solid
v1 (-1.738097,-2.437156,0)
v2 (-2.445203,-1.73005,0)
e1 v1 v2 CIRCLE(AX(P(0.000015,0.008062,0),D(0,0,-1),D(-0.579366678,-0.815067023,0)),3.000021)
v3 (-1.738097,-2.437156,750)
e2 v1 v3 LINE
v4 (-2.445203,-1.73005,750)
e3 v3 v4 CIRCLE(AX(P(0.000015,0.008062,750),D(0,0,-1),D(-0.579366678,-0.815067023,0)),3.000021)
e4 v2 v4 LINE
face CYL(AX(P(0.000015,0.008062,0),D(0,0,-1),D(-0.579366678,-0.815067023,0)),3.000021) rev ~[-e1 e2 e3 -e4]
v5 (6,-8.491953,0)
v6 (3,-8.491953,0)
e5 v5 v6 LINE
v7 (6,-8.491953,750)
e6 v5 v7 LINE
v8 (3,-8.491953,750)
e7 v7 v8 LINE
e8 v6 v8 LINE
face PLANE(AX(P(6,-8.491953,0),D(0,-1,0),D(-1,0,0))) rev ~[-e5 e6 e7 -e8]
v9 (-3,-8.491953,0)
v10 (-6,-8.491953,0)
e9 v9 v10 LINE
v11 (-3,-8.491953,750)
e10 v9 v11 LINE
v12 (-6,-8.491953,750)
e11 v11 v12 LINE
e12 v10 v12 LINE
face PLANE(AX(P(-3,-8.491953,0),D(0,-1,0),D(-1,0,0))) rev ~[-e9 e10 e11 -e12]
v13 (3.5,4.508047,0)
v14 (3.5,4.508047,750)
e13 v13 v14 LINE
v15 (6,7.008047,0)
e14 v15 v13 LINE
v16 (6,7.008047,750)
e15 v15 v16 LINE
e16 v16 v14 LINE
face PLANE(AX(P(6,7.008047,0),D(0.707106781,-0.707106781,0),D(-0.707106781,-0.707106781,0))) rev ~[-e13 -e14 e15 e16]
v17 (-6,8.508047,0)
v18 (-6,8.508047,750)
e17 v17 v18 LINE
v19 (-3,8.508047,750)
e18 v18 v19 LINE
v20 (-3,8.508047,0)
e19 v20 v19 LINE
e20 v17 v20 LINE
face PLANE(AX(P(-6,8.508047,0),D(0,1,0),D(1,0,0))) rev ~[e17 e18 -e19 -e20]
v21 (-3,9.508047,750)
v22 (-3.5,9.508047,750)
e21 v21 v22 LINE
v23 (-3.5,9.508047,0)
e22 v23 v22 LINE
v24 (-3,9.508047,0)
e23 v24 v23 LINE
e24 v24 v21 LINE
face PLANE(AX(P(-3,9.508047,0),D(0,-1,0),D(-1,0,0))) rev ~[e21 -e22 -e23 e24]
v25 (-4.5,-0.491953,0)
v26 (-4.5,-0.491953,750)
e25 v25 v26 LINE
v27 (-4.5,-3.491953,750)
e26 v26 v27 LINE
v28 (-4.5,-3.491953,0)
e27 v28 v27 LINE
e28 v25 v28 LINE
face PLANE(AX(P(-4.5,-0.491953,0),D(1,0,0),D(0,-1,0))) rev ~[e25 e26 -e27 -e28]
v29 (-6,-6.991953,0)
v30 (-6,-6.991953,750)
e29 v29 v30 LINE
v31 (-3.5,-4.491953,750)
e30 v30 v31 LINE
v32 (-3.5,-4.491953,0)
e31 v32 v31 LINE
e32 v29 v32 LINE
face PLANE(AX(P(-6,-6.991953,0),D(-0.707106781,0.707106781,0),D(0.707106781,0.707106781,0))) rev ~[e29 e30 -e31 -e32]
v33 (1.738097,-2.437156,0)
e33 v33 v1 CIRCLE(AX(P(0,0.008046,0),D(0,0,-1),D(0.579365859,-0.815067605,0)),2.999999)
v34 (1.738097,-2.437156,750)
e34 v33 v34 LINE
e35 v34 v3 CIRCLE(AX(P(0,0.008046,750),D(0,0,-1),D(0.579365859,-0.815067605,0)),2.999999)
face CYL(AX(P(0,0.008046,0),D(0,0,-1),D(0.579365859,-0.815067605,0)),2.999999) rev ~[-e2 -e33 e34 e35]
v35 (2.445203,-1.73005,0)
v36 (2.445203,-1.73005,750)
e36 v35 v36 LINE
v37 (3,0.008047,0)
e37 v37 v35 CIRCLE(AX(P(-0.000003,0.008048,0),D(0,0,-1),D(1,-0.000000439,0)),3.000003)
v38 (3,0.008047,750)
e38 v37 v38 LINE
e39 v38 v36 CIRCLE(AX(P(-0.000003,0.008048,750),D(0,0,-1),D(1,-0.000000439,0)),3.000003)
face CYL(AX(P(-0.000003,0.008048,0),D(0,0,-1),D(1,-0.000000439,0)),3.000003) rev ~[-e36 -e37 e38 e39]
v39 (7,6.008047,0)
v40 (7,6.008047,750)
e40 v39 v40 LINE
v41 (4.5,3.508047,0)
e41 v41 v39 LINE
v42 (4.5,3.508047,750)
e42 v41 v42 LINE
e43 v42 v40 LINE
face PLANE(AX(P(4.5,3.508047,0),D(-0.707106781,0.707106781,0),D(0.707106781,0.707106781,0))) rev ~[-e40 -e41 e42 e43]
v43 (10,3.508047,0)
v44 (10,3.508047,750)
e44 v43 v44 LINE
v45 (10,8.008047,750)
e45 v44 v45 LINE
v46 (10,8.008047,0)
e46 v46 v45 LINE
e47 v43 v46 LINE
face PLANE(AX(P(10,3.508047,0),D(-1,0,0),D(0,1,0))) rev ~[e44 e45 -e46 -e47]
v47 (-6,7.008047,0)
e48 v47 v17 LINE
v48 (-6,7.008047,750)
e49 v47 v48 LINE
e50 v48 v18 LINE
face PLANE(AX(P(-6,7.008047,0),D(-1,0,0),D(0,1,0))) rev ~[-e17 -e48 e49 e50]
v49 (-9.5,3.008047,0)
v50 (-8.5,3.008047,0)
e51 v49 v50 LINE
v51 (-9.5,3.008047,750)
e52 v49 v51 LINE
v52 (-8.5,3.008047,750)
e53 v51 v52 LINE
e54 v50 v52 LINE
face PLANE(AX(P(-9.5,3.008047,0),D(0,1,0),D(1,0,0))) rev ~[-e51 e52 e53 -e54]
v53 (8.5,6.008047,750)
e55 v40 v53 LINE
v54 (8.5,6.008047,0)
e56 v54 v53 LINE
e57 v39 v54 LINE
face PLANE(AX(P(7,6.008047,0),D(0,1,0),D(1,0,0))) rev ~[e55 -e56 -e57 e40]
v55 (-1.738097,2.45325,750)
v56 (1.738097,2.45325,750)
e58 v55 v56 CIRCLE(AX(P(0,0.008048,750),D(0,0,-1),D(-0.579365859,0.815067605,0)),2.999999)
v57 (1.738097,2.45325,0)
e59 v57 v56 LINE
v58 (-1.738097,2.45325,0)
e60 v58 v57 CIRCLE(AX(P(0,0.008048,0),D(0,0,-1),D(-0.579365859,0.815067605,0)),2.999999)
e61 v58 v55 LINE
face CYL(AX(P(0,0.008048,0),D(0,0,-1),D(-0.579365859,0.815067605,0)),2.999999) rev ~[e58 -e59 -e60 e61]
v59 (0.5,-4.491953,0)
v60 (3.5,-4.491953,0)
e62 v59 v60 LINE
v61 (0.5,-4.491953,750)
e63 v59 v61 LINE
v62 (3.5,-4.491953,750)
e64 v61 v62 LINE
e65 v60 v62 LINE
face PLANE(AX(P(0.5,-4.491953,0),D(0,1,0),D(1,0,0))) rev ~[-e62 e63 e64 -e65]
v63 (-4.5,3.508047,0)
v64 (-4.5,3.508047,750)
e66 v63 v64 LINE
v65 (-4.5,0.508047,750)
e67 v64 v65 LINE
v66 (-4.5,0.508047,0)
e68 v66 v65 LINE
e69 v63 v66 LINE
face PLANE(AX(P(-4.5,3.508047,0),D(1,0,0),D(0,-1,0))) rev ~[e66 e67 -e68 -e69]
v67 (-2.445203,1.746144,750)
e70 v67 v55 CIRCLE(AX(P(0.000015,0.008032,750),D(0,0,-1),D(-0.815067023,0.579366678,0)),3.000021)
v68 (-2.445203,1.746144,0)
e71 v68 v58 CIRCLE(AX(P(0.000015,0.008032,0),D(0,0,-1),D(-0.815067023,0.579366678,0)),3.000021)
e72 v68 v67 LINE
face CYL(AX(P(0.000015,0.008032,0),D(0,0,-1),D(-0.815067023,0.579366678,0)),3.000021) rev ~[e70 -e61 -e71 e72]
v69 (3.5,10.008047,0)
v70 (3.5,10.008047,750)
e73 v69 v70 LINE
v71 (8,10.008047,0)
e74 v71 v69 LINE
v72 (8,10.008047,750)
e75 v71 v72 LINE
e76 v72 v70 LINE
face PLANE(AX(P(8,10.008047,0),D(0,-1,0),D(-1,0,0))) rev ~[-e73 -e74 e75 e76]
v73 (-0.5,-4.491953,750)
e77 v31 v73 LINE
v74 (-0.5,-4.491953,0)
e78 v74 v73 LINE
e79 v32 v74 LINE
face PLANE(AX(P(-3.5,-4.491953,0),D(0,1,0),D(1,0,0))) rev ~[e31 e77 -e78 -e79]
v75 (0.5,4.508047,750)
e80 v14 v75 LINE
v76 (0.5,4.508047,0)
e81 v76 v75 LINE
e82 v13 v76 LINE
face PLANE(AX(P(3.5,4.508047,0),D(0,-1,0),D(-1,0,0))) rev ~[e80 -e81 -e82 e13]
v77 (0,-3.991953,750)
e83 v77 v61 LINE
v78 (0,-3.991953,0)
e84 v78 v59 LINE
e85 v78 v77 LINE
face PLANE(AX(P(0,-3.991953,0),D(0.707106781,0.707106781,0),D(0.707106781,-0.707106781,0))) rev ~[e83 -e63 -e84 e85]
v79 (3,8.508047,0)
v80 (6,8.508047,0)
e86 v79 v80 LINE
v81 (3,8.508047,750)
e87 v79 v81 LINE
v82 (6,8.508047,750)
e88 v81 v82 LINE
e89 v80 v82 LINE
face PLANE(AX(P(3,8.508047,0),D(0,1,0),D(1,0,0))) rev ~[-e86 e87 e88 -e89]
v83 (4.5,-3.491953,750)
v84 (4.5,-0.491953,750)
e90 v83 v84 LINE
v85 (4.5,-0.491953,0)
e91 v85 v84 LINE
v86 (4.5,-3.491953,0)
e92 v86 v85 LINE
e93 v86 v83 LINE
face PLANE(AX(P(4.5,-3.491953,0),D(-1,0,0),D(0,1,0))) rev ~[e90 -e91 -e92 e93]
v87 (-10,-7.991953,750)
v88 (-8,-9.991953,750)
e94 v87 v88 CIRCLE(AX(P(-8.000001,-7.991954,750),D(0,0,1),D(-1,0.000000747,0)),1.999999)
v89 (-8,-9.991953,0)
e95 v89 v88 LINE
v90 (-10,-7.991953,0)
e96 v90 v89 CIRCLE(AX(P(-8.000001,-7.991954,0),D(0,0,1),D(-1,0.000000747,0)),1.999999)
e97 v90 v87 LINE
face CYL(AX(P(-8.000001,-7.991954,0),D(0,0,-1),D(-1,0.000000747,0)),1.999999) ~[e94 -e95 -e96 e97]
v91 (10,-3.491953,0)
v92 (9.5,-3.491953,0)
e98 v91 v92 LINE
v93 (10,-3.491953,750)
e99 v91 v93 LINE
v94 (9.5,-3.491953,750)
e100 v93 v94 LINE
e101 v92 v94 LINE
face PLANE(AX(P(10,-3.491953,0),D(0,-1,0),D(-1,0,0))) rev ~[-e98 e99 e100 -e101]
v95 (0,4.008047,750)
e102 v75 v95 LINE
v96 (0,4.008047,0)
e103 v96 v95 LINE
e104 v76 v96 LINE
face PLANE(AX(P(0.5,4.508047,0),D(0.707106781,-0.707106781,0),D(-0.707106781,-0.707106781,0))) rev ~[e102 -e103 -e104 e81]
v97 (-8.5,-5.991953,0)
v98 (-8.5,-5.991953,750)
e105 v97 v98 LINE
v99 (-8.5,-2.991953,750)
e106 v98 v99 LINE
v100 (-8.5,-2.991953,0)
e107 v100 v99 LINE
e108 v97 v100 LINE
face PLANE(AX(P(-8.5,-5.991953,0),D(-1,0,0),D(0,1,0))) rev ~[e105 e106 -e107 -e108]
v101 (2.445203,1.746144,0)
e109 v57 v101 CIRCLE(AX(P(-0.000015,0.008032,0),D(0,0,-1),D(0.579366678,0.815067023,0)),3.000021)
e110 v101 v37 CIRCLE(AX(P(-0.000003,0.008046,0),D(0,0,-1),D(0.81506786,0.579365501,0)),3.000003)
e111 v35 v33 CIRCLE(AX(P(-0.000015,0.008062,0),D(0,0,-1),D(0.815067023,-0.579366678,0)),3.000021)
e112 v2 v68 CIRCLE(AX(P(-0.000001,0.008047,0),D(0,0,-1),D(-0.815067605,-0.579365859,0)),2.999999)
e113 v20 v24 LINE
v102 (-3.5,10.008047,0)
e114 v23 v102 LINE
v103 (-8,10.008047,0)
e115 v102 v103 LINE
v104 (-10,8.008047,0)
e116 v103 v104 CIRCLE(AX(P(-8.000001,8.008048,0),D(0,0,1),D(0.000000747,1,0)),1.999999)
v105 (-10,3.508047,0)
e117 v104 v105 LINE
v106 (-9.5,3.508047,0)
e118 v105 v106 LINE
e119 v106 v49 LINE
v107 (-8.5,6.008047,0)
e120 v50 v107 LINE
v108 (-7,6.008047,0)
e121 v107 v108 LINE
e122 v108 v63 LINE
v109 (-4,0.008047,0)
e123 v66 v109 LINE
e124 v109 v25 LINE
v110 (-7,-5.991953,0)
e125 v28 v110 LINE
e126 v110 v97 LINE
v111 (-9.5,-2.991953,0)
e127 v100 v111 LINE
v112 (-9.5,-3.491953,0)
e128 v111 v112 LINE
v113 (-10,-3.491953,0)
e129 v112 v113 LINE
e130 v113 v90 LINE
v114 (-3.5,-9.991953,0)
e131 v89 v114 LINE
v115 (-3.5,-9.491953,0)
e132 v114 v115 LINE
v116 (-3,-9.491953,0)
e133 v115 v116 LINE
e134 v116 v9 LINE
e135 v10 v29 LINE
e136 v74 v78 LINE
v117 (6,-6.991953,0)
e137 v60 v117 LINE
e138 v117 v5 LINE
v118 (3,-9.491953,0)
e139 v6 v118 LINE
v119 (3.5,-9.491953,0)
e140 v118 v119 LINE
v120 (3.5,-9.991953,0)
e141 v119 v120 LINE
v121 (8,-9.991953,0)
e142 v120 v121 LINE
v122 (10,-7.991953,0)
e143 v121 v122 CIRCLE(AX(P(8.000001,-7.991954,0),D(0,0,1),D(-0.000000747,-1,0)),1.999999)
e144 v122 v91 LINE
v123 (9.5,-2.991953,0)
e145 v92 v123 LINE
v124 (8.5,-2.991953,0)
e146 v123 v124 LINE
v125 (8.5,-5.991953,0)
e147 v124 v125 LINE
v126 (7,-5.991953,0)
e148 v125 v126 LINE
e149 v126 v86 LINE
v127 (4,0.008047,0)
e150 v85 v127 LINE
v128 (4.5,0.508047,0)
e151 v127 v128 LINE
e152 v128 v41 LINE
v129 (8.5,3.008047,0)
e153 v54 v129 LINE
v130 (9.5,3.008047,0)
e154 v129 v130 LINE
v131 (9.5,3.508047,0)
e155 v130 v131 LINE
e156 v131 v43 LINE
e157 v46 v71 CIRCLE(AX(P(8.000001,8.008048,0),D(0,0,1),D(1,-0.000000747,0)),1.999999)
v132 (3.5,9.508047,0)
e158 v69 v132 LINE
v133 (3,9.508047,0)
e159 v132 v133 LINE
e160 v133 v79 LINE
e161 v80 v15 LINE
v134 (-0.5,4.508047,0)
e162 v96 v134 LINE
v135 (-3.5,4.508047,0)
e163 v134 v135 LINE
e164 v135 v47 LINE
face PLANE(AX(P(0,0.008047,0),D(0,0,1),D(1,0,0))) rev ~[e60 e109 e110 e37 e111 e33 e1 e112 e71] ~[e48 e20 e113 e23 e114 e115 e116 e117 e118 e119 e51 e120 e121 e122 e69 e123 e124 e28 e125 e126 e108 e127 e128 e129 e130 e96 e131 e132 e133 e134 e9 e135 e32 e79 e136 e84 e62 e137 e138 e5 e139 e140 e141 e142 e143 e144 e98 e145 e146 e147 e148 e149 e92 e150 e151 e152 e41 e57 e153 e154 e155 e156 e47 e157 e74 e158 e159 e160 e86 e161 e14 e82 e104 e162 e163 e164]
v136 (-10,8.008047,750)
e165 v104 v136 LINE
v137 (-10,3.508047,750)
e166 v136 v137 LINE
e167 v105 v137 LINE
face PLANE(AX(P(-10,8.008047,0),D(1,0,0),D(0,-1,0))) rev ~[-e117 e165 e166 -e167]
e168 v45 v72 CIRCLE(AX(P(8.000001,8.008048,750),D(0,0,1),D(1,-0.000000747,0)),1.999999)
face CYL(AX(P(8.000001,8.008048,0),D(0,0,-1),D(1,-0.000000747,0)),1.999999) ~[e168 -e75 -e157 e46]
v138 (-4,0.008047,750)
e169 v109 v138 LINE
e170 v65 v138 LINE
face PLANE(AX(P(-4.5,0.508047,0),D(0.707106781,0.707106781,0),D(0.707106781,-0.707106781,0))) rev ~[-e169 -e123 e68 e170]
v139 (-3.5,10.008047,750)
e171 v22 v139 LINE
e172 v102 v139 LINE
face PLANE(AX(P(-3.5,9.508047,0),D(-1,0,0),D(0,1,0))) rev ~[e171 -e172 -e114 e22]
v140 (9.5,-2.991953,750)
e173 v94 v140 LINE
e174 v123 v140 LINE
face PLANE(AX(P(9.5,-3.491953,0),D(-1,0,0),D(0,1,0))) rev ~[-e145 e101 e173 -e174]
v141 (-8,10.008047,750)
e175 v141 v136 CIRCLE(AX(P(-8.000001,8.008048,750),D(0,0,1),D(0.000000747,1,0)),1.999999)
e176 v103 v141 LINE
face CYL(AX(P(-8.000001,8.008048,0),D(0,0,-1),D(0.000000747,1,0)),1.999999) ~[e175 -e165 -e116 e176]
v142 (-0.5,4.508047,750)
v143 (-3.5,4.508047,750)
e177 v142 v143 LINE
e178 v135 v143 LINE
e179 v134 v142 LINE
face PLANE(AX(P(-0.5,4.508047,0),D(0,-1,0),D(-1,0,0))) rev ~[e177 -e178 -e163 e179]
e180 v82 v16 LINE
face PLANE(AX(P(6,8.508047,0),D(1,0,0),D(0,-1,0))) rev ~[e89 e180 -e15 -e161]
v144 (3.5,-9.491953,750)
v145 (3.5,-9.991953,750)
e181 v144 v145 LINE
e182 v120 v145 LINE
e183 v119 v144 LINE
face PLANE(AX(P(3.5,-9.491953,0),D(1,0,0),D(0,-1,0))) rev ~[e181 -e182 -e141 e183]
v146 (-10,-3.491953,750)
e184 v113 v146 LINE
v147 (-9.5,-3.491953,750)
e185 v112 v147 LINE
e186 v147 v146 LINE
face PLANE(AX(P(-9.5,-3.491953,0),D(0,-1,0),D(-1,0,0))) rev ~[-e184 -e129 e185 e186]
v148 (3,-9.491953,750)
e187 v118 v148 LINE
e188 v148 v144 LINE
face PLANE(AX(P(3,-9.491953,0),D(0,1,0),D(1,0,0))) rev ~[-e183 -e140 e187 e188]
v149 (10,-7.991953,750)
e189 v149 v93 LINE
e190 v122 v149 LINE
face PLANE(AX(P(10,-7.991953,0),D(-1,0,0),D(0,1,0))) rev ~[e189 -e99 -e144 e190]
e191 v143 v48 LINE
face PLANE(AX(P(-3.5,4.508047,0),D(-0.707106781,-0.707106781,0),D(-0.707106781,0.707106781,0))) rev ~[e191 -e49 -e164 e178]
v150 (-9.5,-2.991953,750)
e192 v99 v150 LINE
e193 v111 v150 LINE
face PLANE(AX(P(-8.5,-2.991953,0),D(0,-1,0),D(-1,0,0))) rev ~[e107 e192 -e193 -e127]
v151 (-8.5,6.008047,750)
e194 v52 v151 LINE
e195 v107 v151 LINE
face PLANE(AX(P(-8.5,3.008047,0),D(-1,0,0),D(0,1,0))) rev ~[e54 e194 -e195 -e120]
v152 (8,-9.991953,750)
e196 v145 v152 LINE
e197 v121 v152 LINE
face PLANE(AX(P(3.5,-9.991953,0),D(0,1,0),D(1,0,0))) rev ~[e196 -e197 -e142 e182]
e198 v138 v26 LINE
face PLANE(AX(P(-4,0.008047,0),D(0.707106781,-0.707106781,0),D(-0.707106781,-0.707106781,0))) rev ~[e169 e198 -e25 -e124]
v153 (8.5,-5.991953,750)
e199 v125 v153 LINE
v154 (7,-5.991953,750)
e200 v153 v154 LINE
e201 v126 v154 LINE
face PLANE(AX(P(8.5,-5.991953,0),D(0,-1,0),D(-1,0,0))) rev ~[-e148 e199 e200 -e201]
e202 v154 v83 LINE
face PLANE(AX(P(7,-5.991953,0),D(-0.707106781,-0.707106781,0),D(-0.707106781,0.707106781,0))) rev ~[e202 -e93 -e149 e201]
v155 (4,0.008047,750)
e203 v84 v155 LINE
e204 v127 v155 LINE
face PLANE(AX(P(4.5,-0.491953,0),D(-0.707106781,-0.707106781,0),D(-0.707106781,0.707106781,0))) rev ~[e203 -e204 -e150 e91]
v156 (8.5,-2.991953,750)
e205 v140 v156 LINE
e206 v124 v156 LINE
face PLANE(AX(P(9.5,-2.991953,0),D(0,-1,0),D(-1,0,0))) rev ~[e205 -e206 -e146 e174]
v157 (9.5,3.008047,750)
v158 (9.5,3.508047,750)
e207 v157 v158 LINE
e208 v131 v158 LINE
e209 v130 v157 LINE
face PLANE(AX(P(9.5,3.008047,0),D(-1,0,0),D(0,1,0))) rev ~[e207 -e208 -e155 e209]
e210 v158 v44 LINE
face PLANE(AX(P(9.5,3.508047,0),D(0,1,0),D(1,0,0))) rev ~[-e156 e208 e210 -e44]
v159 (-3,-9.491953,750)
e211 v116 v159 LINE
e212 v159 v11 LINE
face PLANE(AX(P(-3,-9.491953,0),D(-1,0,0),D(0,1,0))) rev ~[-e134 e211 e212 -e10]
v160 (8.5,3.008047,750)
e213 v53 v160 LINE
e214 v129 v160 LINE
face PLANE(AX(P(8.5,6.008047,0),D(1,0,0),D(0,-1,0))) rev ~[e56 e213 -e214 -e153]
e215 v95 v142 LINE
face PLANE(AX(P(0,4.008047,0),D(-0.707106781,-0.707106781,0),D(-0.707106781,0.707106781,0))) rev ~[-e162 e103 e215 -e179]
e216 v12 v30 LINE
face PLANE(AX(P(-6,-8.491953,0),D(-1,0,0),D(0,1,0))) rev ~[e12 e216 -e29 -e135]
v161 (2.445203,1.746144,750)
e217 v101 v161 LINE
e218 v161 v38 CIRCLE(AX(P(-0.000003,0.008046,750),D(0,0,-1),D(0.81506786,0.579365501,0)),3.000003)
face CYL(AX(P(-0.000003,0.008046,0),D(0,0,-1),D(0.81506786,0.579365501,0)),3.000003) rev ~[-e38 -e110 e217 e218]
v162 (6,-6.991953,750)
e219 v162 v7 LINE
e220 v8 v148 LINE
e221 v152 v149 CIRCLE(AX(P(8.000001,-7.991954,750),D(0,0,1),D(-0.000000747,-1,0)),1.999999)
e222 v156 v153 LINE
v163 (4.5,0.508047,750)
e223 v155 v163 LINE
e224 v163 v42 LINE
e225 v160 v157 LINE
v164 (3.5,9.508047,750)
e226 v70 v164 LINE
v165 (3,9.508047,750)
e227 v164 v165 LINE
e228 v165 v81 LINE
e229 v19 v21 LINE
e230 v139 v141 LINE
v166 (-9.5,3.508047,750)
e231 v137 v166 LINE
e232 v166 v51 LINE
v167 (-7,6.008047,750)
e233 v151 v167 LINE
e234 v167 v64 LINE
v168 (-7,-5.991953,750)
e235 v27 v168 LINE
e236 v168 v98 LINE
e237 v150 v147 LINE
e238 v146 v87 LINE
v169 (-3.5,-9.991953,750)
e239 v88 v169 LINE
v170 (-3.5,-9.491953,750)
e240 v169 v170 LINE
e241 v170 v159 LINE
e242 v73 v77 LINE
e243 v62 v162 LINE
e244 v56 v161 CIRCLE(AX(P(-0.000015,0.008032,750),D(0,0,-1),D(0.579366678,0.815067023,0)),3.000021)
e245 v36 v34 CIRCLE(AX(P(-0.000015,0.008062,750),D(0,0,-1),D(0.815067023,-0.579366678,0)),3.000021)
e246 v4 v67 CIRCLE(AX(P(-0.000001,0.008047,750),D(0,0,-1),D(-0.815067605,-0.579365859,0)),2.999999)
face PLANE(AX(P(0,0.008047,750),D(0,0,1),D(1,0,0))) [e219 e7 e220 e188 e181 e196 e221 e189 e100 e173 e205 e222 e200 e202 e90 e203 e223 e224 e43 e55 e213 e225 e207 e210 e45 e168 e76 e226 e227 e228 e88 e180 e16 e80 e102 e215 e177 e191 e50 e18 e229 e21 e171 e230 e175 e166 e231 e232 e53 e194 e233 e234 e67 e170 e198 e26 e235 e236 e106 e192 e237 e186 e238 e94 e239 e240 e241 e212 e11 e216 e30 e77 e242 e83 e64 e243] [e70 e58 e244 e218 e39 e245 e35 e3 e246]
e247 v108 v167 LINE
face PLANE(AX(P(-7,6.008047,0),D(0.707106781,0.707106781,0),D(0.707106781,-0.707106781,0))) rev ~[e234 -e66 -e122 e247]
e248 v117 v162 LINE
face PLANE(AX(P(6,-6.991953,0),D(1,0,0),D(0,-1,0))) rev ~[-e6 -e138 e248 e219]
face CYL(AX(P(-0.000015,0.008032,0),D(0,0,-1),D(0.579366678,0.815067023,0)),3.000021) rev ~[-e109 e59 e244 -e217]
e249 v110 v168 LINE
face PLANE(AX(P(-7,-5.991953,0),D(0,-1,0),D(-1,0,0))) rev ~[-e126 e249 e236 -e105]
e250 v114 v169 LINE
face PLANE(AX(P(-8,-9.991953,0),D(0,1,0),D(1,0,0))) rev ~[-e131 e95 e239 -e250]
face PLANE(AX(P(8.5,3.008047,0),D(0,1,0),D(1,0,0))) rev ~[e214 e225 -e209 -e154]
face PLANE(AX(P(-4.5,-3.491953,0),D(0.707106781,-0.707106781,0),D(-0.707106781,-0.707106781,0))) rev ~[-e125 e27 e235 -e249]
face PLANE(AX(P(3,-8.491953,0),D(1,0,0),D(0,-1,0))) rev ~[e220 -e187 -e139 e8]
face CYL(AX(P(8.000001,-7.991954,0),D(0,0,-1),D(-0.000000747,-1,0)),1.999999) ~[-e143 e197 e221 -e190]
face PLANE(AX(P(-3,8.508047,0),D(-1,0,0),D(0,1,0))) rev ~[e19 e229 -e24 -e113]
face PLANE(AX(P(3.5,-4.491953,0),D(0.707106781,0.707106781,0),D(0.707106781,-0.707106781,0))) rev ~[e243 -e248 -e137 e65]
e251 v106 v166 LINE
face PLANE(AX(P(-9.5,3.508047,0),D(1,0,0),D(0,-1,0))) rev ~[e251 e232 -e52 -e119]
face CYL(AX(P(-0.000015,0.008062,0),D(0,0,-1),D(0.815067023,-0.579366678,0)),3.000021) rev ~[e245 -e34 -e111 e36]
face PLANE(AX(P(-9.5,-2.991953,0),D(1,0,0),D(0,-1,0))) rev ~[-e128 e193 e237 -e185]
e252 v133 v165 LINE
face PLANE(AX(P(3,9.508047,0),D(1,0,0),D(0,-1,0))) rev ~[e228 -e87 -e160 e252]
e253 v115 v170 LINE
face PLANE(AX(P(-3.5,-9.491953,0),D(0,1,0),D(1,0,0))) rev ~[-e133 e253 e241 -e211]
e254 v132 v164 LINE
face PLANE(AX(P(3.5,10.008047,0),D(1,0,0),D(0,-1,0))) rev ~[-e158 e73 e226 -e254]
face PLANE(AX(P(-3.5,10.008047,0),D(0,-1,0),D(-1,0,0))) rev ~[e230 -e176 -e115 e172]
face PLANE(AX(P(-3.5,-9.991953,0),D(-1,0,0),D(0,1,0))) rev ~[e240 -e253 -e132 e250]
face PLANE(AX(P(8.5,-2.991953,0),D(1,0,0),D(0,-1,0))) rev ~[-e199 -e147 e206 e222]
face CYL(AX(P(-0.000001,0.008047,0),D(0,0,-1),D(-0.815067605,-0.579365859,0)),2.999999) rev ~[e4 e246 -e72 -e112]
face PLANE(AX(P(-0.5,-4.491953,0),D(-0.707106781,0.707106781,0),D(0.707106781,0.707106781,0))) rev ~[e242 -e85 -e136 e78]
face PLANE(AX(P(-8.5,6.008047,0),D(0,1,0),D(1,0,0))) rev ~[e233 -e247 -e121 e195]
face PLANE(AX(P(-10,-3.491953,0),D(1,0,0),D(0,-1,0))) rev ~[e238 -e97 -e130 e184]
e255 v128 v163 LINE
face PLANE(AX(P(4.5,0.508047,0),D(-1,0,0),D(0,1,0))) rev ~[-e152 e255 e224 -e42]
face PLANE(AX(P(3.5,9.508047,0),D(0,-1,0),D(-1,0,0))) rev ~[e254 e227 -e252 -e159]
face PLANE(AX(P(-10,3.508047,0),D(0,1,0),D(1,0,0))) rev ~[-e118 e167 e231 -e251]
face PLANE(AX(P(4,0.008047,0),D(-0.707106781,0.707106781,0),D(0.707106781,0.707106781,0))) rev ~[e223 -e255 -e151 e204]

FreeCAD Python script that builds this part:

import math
import FreeCAD as App
import Part
import Sketcher

V = App.Vector
Q = App.Units.Quantity

doc = App.newDocument("Part")
params = doc.addObject("Spreadsheet::Sheet", "Params")
for row, (alias, value) in enumerate([
    ("sketch1_radius", "1.999999 mm"),
    ("sketch1_radius2", "1.999999 mm"),
    ("sketch1_radius3", "1.999999 mm"),
    ("sketch1_radius4", "1.999999 mm"),
    ("sketch1_radius5", "2.999999 mm"),
    ("pad1_length", "750 mm"),
], start=1):
    params.set(f"A{row}", alias)
    params.set(f"B{row}", "=" + value)
    params.setAlias(f"B{row}", alias)

body = doc.addObject("PartDesign::Body", "Body")

sketch1 = body.newObject("Sketcher::SketchObject", "Sketch")
sketch1.AttachmentSupport = (doc.getObject("XY_Plane"), [""])
sketch1.MapMode = "FlatFace"
sketch1.addGeometry(Part.ArcOfCircle(Part.Circle(V(-8.000001, -7.991954, 0), V(0, 0, 1), 1.999999), math.radians(179.999957), math.radians(270.000043)), False)
sketch1.addGeometry(Part.LineSegment(V(-8, -9.991953, 0), V(-3.5, -9.991953, 0)), False)
sketch1.addGeometry(Part.LineSegment(V(-3.5, -9.991953, 0), V(-3.5, -9.491953, 0)), False)
sketch1.addGeometry(Part.LineSegment(V(-3.5, -9.491953, 0), V(-3, -9.491953, 0)), False)
sketch1.addGeometry(Part.LineSegment(V(-3, -9.491953, 0), V(-3, -8.491953, 0)), False)
sketch1.addGeometry(Part.LineSegment(V(-3, -8.491953, 0), V(-6, -8.491953, 0)), False)
sketch1.addGeometry(Part.LineSegment(V(-6, -8.491953, 0), V(-6, -6.991953, 0)), False)
sketch1.addGeometry(Part.LineSegment(V(-6, -6.991953, 0), V(-3.5, -4.491953, 0)), False)
sketch1.addGeometry(Part.LineSegment(V(-3.5, -4.491953, 0), V(-0.5, -4.491953, 0)), False)
sketch1.addGeometry(Part.LineSegment(V(-0.5, -4.491953, 0), V(0, -3.991953, 0)), False)
sketch1.addGeometry(Part.LineSegment(V(0, -3.991953, 0), V(0.5, -4.491953, 0)), False)
sketch1.addGeometry(Part.LineSegment(V(0.5, -4.491953, 0), V(3.5, -4.491953, 0)), False)
sketch1.addGeometry(Part.LineSegment(V(3.5, -4.491953, 0), V(6, -6.991953, 0)), False)
sketch1.addGeometry(Part.LineSegment(V(6, -6.991953, 0), V(6, -8.491953, 0)), False)
sketch1.addGeometry(Part.LineSegment(V(6, -8.491953, 0), V(3, -8.491953, 0)), False)
sketch1.addGeometry(Part.LineSegment(V(3, -8.491953, 0), V(3, -9.491953, 0)), False)
sketch1.addGeometry(Part.LineSegment(V(3, -9.491953, 0), V(3.5, -9.491953, 0)), False)
sketch1.addGeometry(Part.LineSegment(V(3.5, -9.491953, 0), V(3.5, -9.991953, 0)), False)
sketch1.addGeometry(Part.LineSegment(V(3.5, -9.991953, 0), V(8, -9.991953, 0)), False)
sketch1.addGeometry(Part.ArcOfCircle(Part.Circle(V(8.000001, -7.991954, 0), V(0, 0, 1), 1.999999), math.radians(-90.000043), math.radians(0.000043)), False)
sketch1.addGeometry(Part.LineSegment(V(10, -7.991953, 0), V(10, -3.491953, 0)), False)
sketch1.addGeometry(Part.LineSegment(V(10, -3.491953, 0), V(9.5, -3.491953, 0)), False)
sketch1.addGeometry(Part.LineSegment(V(9.5, -3.491953, 0), V(9.5, -2.991953, 0)), False)
sketch1.addGeometry(Part.LineSegment(V(9.5, -2.991953, 0), V(8.5, -2.991953, 0)), False)
sketch1.addGeometry(Part.LineSegment(V(8.5, -2.991953, 0), V(8.5, -5.991953, 0)), False)
sketch1.addGeometry(Part.LineSegment(V(8.5, -5.991953, 0), V(7, -5.991953, 0)), False)
sketch1.addGeometry(Part.LineSegment(V(7, -5.991953, 0), V(4.5, -3.491953, 0)), False)
sketch1.addGeometry(Part.LineSegment(V(4.5, -3.491953, 0), V(4.5, -0.491953, 0)), False)
sketch1.addGeometry(Part.LineSegment(V(4.5, -0.491953, 0), V(4, 0.008047, 0)), False)
sketch1.addGeometry(Part.LineSegment(V(4, 0.008047, 0), V(4.5, 0.508047, 0)), False)
sketch1.addGeometry(Part.LineSegment(V(4.5, 0.508047, 0), V(4.5, 3.508047, 0)), False)
sketch1.addGeometry(Part.LineSegment(V(4.5, 3.508047, 0), V(7, 6.008047, 0)), False)
sketch1.addGeometry(Part.LineSegment(V(7, 6.008047, 0), V(8.5, 6.008047, 0)), False)
sketch1.addGeometry(Part.LineSegment(V(8.5, 6.008047, 0), V(8.5, 3.008047, 0)), False)
sketch1.addGeometry(Part.LineSegment(V(8.5, 3.008047, 0), V(9.5, 3.008047, 0)), False)
sketch1.addGeometry(Part.LineSegment(V(9.5, 3.008047, 0), V(9.5, 3.508047, 0)), False)
sketch1.addGeometry(Part.LineSegment(V(9.5, 3.508047, 0), V(10, 3.508047, 0)), False)
sketch1.addGeometry(Part.LineSegment(V(10, 3.508047, 0), V(10, 8.008047, 0)), False)
sketch1.addGeometry(Part.ArcOfCircle(Part.Circle(V(8.000001, 8.008048, 0), V(0, 0, 1), 1.999999), math.radians(-0.000043), math.radians(90.000043)), False)
sketch1.addGeometry(Part.LineSegment(V(8, 10.008047, 0), V(3.5, 10.008047, 0)), False)
sketch1.addGeometry(Part.LineSegment(V(3.5, 10.008047, 0), V(3.5, 9.508047, 0)), False)
sketch1.addGeometry(Part.LineSegment(V(3.5, 9.508047, 0), V(3, 9.508047, 0)), False)
sketch1.addGeometry(Part.LineSegment(V(3, 9.508047, 0), V(3, 8.508047, 0)), False)
sketch1.addGeometry(Part.LineSegment(V(3, 8.508047, 0), V(6, 8.508047, 0)), False)
sketch1.addGeometry(Part.LineSegment(V(6, 8.508047, 0), V(6, 7.008047, 0)), False)
sketch1.addGeometry(Part.LineSegment(V(6, 7.008047, 0), V(3.5, 4.508047, 0)), False)
sketch1.addGeometry(Part.LineSegment(V(3.5, 4.508047, 0), V(0.5, 4.508047, 0)), False)
sketch1.addGeometry(Part.LineSegment(V(0.5, 4.508047, 0), V(0, 4.008047, 0)), False)
sketch1.addGeometry(Part.LineSegment(V(0, 4.008047, 0), V(-0.5, 4.508047, 0)), False)
sketch1.addGeometry(Part.LineSegment(V(-0.5, 4.508047, 0), V(-3.5, 4.508047, 0)), False)
sketch1.addGeometry(Part.LineSegment(V(-3.5, 4.508047, 0), V(-6, 7.008047, 0)), False)
sketch1.addGeometry(Part.LineSegment(V(-6, 7.008047, 0), V(-6, 8.508047, 0)), False)
sketch1.addGeometry(Part.LineSegment(V(-6, 8.508047, 0), V(-3, 8.508047, 0)), False)
sketch1.addGeometry(Part.LineSegment(V(-3, 8.508047, 0), V(-3, 9.508047, 0)), False)
sketch1.addGeometry(Part.LineSegment(V(-3, 9.508047, 0), V(-3.5, 9.508047, 0)), False)
sketch1.addGeometry(Part.LineSegment(V(-3.5, 9.508047, 0), V(-3.5, 10.008047, 0)), False)
sketch1.addGeometry(Part.LineSegment(V(-3.5, 10.008047, 0), V(-8, 10.008047, 0)), False)
sketch1.addGeometry(Part.ArcOfCircle(Part.Circle(V(-8.000001, 8.008048, 0), V(0, 0, 1), 1.999999), math.radians(89.999957), math.radians(180.000043)), False)
sketch1.addGeometry(Part.LineSegment(V(-10, 8.008047, 0), V(-10, 3.508047, 0)), False)
sketch1.addGeometry(Part.LineSegment(V(-10, 3.508047, 0), V(-9.5, 3.508047, 0)), False)
sketch1.addGeometry(Part.LineSegment(V(-9.5, 3.508047, 0), V(-9.5, 3.008047, 0)), False)
sketch1.addGeometry(Part.LineSegment(V(-9.5, 3.008047, 0), V(-8.5, 3.008047, 0)), False)
sketch1.addGeometry(Part.LineSegment(V(-8.5, 3.008047, 0), V(-8.5, 6.008047, 0)), False)
sketch1.addGeometry(Part.LineSegment(V(-8.5, 6.008047, 0), V(-7, 6.008047, 0)), False)
sketch1.addGeometry(Part.LineSegment(V(-7, 6.008047, 0), V(-4.5, 3.508047, 0)), False)
sketch1.addGeometry(Part.LineSegment(V(-4.5, 3.508047, 0), V(-4.5, 0.508047, 0)), False)
sketch1.addGeometry(Part.LineSegment(V(-4.5, 0.508047, 0), V(-4, 0.008047, 0)), False)
sketch1.addGeometry(Part.LineSegment(V(-4, 0.008047, 0), V(-4.5, -0.491953, 0)), False)
sketch1.addGeometry(Part.LineSegment(V(-4.5, -0.491953, 0), V(-4.5, -3.491953, 0)), False)
sketch1.addGeometry(Part.LineSegment(V(-4.5, -3.491953, 0), V(-7, -5.991953, 0)), False)
sketch1.addGeometry(Part.LineSegment(V(-7, -5.991953, 0), V(-8.5, -5.991953, 0)), False)
sketch1.addGeometry(Part.LineSegment(V(-8.5, -5.991953, 0), V(-8.5, -2.991953, 0)), False)
sketch1.addGeometry(Part.LineSegment(V(-8.5, -2.991953, 0), V(-9.5, -2.991953, 0)), False)
sketch1.addGeometry(Part.LineSegment(V(-9.5, -2.991953, 0), V(-9.5, -3.491953, 0)), False)
sketch1.addGeometry(Part.LineSegment(V(-9.5, -3.491953, 0), V(-10, -3.491953, 0)), False)
sketch1.addGeometry(Part.LineSegment(V(-10, -3.491953, 0), V(-10, -7.991953, 0)), False)
sketch1.addGeometry(Part.ArcOfCircle(Part.Circle(V(-0.000015, 0.008032, 0), V(0, 0, 1), 3.000021), math.radians(35.40601), math.radians(54.59399)), False)
sketch1.addGeometry(Part.ArcOfCircle(Part.Circle(V(-0.000003, 0.008046, 0), V(0, 0, 1), 3.000003), math.radians(0.000025), math.radians(35.405928)), False)
sketch1.addGeometry(Part.ArcOfCircle(Part.Circle(V(-0.000003, 0.008048, 0), V(0, 0, 1), 3.000003), math.radians(-35.405928), math.radians(-0.000025)), False)
sketch1.addGeometry(Part.ArcOfCircle(Part.Circle(V(-0.000015, 0.008062, 0), V(0, 0, 1), 3.000021), math.radians(-54.59399), math.radians(-35.40601)), False)
sketch1.addGeometry(Part.ArcOfCircle(Part.Circle(V(0, 0.008046, 0), V(0, 0, 1), 2.999999), math.radians(-125.405953), math.radians(-54.594047)), False)
sketch1.addGeometry(Part.ArcOfCircle(Part.Circle(V(0.000015, 0.008062, 0), V(0, 0, 1), 3.000021), math.radians(-144.59399), math.radians(-125.40601)), False)
sketch1.addGeometry(Part.ArcOfCircle(Part.Circle(V(-0.000001, 0.008047, 0), V(0, 0, 1), 2.999999), math.radians(144.594047), math.radians(215.405953)), False)
sketch1.addGeometry(Part.ArcOfCircle(Part.Circle(V(0.000015, 0.008032, 0), V(0, 0, 1), 3.000021), math.radians(125.40601), math.radians(144.59399)), False)
sketch1.addGeometry(Part.ArcOfCircle(Part.Circle(V(0, 0.008048, 0), V(0, 0, 1), 2.999999), math.radians(54.594047), math.radians(125.405953)), False)
sketch1.addConstraint(Sketcher.Constraint("Coincident", 0, 2, 1, 1))
sketch1.addConstraint(Sketcher.Constraint("Coincident", 1, 2, 2, 1))
sketch1.addConstraint(Sketcher.Constraint("Coincident", 2, 2, 3, 1))
sketch1.addConstraint(Sketcher.Constraint("Coincident", 3, 2, 4, 1))
sketch1.addConstraint(Sketcher.Constraint("Coincident", 4, 2, 5, 1))
sketch1.addConstraint(Sketcher.Constraint("Coincident", 5, 2, 6, 1))
sketch1.addConstraint(Sketcher.Constraint("Coincident", 6, 2, 7, 1))
sketch1.addConstraint(Sketcher.Constraint("Coincident", 7, 2, 8, 1))
sketch1.addConstraint(Sketcher.Constraint("Coincident", 8, 2, 9, 1))
sketch1.addConstraint(Sketcher.Constraint("Coincident", 9, 2, 10, 1))
sketch1.addConstraint(Sketcher.Constraint("Coincident", 10, 2, 11, 1))
sketch1.addConstraint(Sketcher.Constraint("Coincident", 11, 2, 12, 1))
sketch1.addConstraint(Sketcher.Constraint("Coincident", 12, 2, 13, 1))
sketch1.addConstraint(Sketcher.Constraint("Coincident", 13, 2, 14, 1))
sketch1.addConstraint(Sketcher.Constraint("Coincident", 14, 2, 15, 1))
sketch1.addConstraint(Sketcher.Constraint("Coincident", 15, 2, 16, 1))
sketch1.addConstraint(Sketcher.Constraint("Coincident", 16, 2, 17, 1))
sketch1.addConstraint(Sketcher.Constraint("Coincident", 17, 2, 18, 1))
sketch1.addConstraint(Sketcher.Constraint("Coincident", 18, 2, 19, 1))
sketch1.addConstraint(Sketcher.Constraint("Coincident", 19, 2, 20, 1))
sketch1.addConstraint(Sketcher.Constraint("Coincident", 20, 2, 21, 1))
sketch1.addConstraint(Sketcher.Constraint("Coincident", 21, 2, 22, 1))
sketch1.addConstraint(Sketcher.Constraint("Coincident", 22, 2, 23, 1))
sketch1.addConstraint(Sketcher.Constraint("Coincident", 23, 2, 24, 1))
sketch1.addConstraint(Sketcher.Constraint("Coincident", 24, 2, 25, 1))
sketch1.addConstraint(Sketcher.Constraint("Coincident", 25, 2, 26, 1))
sketch1.addConstraint(Sketcher.Constraint("Coincident", 26, 2, 27, 1))
sketch1.addConstraint(Sketcher.Constraint("Coincident", 27, 2, 28, 1))
sketch1.addConstraint(Sketcher.Constraint("Coincident", 28, 2, 29, 1))
sketch1.addConstraint(Sketcher.Constraint("Coincident", 29, 2, 30, 1))
sketch1.addConstraint(Sketcher.Constraint("Coincident", 30, 2, 31, 1))
sketch1.addConstraint(Sketcher.Constraint("Coincident", 31, 2, 32, 1))
sketch1.addConstraint(Sketcher.Constraint("Coincident", 32, 2, 33, 1))
sketch1.addConstraint(Sketcher.Constraint("Coincident", 33, 2, 34, 1))
sketch1.addConstraint(Sketcher.Constraint("Coincident", 34, 2, 35, 1))
sketch1.addConstraint(Sketcher.Constraint("Coincident", 35, 2, 36, 1))
sketch1.addConstraint(Sketcher.Constraint("Coincident", 36, 2, 37, 1))
sketch1.addConstraint(Sketcher.Constraint("Coincident", 37, 2, 38, 1))
sketch1.addConstraint(Sketcher.Constraint("Coincident", 38, 2, 39, 1))
sketch1.addConstraint(Sketcher.Constraint("Coincident", 39, 2, 40, 1))
sketch1.addConstraint(Sketcher.Constraint("Coincident", 40, 2, 41, 1))
sketch1.addConstraint(Sketcher.Constraint("Coincident", 41, 2, 42, 1))
sketch1.addConstraint(Sketcher.Constraint("Coincident", 42, 2, 43, 1))
sketch1.addConstraint(Sketcher.Constraint("Coincident", 43, 2, 44, 1))
sketch1.addConstraint(Sketcher.Constraint("Coincident", 44, 2, 45, 1))
sketch1.addConstraint(Sketcher.Constraint("Coincident", 45, 2, 46, 1))
sketch1.addConstraint(Sketcher.Constraint("Coincident", 46, 2, 47, 1))
sketch1.addConstraint(Sketcher.Constraint("Coincident", 47, 2, 48, 1))
sketch1.addConstraint(Sketcher.Constraint("Coincident", 48, 2, 49, 1))
sketch1.addConstraint(Sketcher.Constraint("Coincident", 49, 2, 50, 1))
sketch1.addConstraint(Sketcher.Constraint("Coincident", 50, 2, 51, 1))
sketch1.addConstraint(Sketcher.Constraint("Coincident", 51, 2, 52, 1))
sketch1.addConstraint(Sketcher.Constraint("Coincident", 52, 2, 53, 1))
sketch1.addConstraint(Sketcher.Constraint("Coincident", 53, 2, 54, 1))
sketch1.addConstraint(Sketcher.Constraint("Coincident", 54, 2, 55, 1))
sketch1.addConstraint(Sketcher.Constraint("Coincident", 55, 2, 56, 1))
sketch1.addConstraint(Sketcher.Constraint("Coincident", 56, 2, 57, 1))
sketch1.addConstraint(Sketcher.Constraint("Coincident", 57, 2, 58, 1))
sketch1.addConstraint(Sketcher.Constraint("Coincident", 58, 2, 59, 1))
sketch1.addConstraint(Sketcher.Constraint("Coincident", 59, 2, 60, 1))
sketch1.addConstraint(Sketcher.Constraint("Coincident", 60, 2, 61, 1))
sketch1.addConstraint(Sketcher.Constraint("Coincident", 61, 2, 62, 1))
sketch1.addConstraint(Sketcher.Constraint("Coincident", 62, 2, 63, 1))
sketch1.addConstraint(Sketcher.Constraint("Coincident", 63, 2, 64, 1))
sketch1.addConstraint(Sketcher.Constraint("Coincident", 64, 2, 65, 1))
sketch1.addConstraint(Sketcher.Constraint("Coincident", 65, 2, 66, 1))
sketch1.addConstraint(Sketcher.Constraint("Coincident", 66, 2, 67, 1))
sketch1.addConstraint(Sketcher.Constraint("Coincident", 67, 2, 68, 1))
sketch1.addConstraint(Sketcher.Constraint("Coincident", 68, 2, 69, 1))
sketch1.addConstraint(Sketcher.Constraint("Coincident", 69, 2, 70, 1))
sketch1.addConstraint(Sketcher.Constraint("Coincident", 70, 2, 71, 1))
sketch1.addConstraint(Sketcher.Constraint("Coincident", 71, 2, 72, 1))
sketch1.addConstraint(Sketcher.Constraint("Coincident", 72, 2, 73, 1))
sketch1.addConstraint(Sketcher.Constraint("Coincident", 73, 2, 74, 1))
sketch1.addConstraint(Sketcher.Constraint("Coincident", 74, 2, 75, 1))
sketch1.addConstraint(Sketcher.Constraint("Coincident", 75, 2, 0, 1))
sketch1.addConstraint(Sketcher.Constraint("Coincident", 76, 1, 77, 2))
sketch1.addConstraint(Sketcher.Constraint("Coincident", 77, 1, 78, 2))
sketch1.addConstraint(Sketcher.Constraint("Coincident", 78, 1, 79, 2))
sketch1.addConstraint(Sketcher.Constraint("Coincident", 79, 1, 80, 2))
sketch1.addConstraint(Sketcher.Constraint("Coincident", 80, 1, 81, 2))
sketch1.addConstraint(Sketcher.Constraint("Coincident", 81, 1, 82, 2))
sketch1.addConstraint(Sketcher.Constraint("Coincident", 82, 1, 83, 2))
sketch1.addConstraint(Sketcher.Constraint("Coincident", 83, 1, 84, 2))
sketch1.addConstraint(Sketcher.Constraint("Coincident", 84, 1, 76, 2))
sketch1.addConstraint(Sketcher.Constraint("Horizontal", 1))
sketch1.addConstraint(Sketcher.Constraint("Vertical", 2))
sketch1.addConstraint(Sketcher.Constraint("Horizontal", 3))
sketch1.addConstraint(Sketcher.Constraint("Vertical", 4))
sketch1.addConstraint(Sketcher.Constraint("Horizontal", 5))
sketch1.addConstraint(Sketcher.Constraint("Vertical", 6))
sketch1.addConstraint(Sketcher.Constraint("Horizontal", 8))
sketch1.addConstraint(Sketcher.Constraint("Horizontal", 11))
sketch1.addConstraint(Sketcher.Constraint("Vertical", 13))
sketch1.addConstraint(Sketcher.Constraint("Horizontal", 14))
sketch1.addConstraint(Sketcher.Constraint("Vertical", 15))
sketch1.addConstraint(Sketcher.Constraint("Horizontal", 16))
sketch1.addConstraint(Sketcher.Constraint("Vertical", 17))
sketch1.addConstraint(Sketcher.Constraint("Horizontal", 18))
sketch1.addConstraint(Sketcher.Constraint("Vertical", 20))
sketch1.addConstraint(Sketcher.Constraint("Horizontal", 21))
sketch1.addConstraint(Sketcher.Constraint("Vertical", 22))
sketch1.addConstraint(Sketcher.Constraint("Horizontal", 23))
sketch1.addConstraint(Sketcher.Constraint("Vertical", 24))
sketch1.addConstraint(Sketcher.Constraint("Horizontal", 25))
sketch1.addConstraint(Sketcher.Constraint("Vertical", 27))
sketch1.addConstraint(Sketcher.Constraint("Vertical", 30))
sketch1.addConstraint(Sketcher.Constraint("Horizontal", 32))
sketch1.addConstraint(Sketcher.Constraint("Vertical", 33))
sketch1.addConstraint(Sketcher.Constraint("Horizontal", 34))
sketch1.addConstraint(Sketcher.Constraint("Vertical", 35))
sketch1.addConstraint(Sketcher.Constraint("Horizontal", 36))
sketch1.addConstraint(Sketcher.Constraint("Vertical", 37))
sketch1.addConstraint(Sketcher.Constraint("Horizontal", 39))
sketch1.addConstraint(Sketcher.Constraint("Vertical", 40))
sketch1.addConstraint(Sketcher.Constraint("Horizontal", 41))
sketch1.addConstraint(Sketcher.Constraint("Vertical", 42))
sketch1.addConstraint(Sketcher.Constraint("Horizontal", 43))
sketch1.addConstraint(Sketcher.Constraint("Vertical", 44))
sketch1.addConstraint(Sketcher.Constraint("Horizontal", 46))
sketch1.addConstraint(Sketcher.Constraint("Horizontal", 49))
sketch1.addConstraint(Sketcher.Constraint("Vertical", 51))
sketch1.addConstraint(Sketcher.Constraint("Horizontal", 52))
sketch1.addConstraint(Sketcher.Constraint("Vertical", 53))
sketch1.addConstraint(Sketcher.Constraint("Horizontal", 54))
sketch1.addConstraint(Sketcher.Constraint("Vertical", 55))
sketch1.addConstraint(Sketcher.Constraint("Horizontal", 56))
sketch1.addConstraint(Sketcher.Constraint("Vertical", 58))
sketch1.addConstraint(Sketcher.Constraint("Horizontal", 59))
sketch1.addConstraint(Sketcher.Constraint("Vertical", 60))
sketch1.addConstraint(Sketcher.Constraint("Horizontal", 61))
sketch1.addConstraint(Sketcher.Constraint("Vertical", 62))
sketch1.addConstraint(Sketcher.Constraint("Horizontal", 63))
sketch1.addConstraint(Sketcher.Constraint("Vertical", 65))
sketch1.addConstraint(Sketcher.Constraint("Vertical", 68))
sketch1.addConstraint(Sketcher.Constraint("Horizontal", 70))
sketch1.addConstraint(Sketcher.Constraint("Vertical", 71))
sketch1.addConstraint(Sketcher.Constraint("Horizontal", 72))
sketch1.addConstraint(Sketcher.Constraint("Vertical", 73))
sketch1.addConstraint(Sketcher.Constraint("Horizontal", 74))
sketch1.addConstraint(Sketcher.Constraint("Vertical", 75))
sketch1.addConstraint(Sketcher.Constraint("Coincident", 78, 3, 77, 3))
sketch1.addConstraint(Sketcher.Constraint("Coincident", 80, 3, 77, 3))
sketch1.addConstraint(Sketcher.Constraint("Coincident", 82, 3, 77, 3))
sketch1.addConstraint(Sketcher.Constraint("Coincident", 84, 3, 77, 3))
sketch1.addConstraint(Sketcher.Constraint("PointOnObject", 80, 3, -2))
sketch1.addConstraint(Sketcher.Constraint("PointOnObject", 9, 2, -2))
sketch1.addConstraint(Sketcher.Constraint("PointOnObject", 47, 2, -2))
sketch1.addConstraint(Sketcher.Constraint("Radius", 0, Q("1.999999 mm")))
sketch1.addConstraint(Sketcher.Constraint("Radius", 19, Q("1.999999 mm")))
sketch1.addConstraint(Sketcher.Constraint("Radius", 38, Q("1.999999 mm")))
sketch1.addConstraint(Sketcher.Constraint("Radius", 57, Q("1.999999 mm")))
sketch1.addConstraint(Sketcher.Constraint("Radius", 80, Q("2.999999 mm")))
sketch1.addConstraint(Sketcher.Constraint("Radius", 82, Q("2.999999 mm")))
sketch1.addConstraint(Sketcher.Constraint("Radius", 84, Q("2.999999 mm")))
sketch1.addConstraint(Sketcher.Constraint("DistanceX", 5, 2, 5, 1, Q("3 mm")))
sketch1.addConstraint(Sketcher.Constraint("DistanceX", 8, 1, 8, 2, Q("3 mm")))
sketch1.addConstraint(Sketcher.Constraint("DistanceX", 11, 1, 11, 2, Q("3 mm")))
sketch1.addConstraint(Sketcher.Constraint("DistanceX", 14, 2, 14, 1, Q("3 mm")))
sketch1.addConstraint(Sketcher.Constraint("DistanceX", 23, 2, 23, 1, Q("1 mm")))
sketch1.addConstraint(Sketcher.Constraint("DistanceX", 34, 1, 34, 2, Q("1 mm")))
sketch1.addConstraint(Sketcher.Constraint("DistanceX", 43, 1, 43, 2, Q("3 mm")))
sketch1.addConstraint(Sketcher.Constraint("DistanceX", 46, 2, 46, 1, Q("3 mm")))
sketch1.addConstraint(Sketcher.Constraint("DistanceX", 49, 2, 49, 1, Q("3 mm")))
sketch1.addConstraint(Sketcher.Constraint("DistanceX", 52, 1, 52, 2, Q("3 mm")))
sketch1.addConstraint(Sketcher.Constraint("DistanceX", 61, 1, 61, 2, Q("1 mm")))
sketch1.addConstraint(Sketcher.Constraint("DistanceX", 72, 2, 72, 1, Q("1 mm")))
sketch1.addConstraint(Sketcher.Constraint("DistanceY", 4, 1, 4, 2, Q("1 mm")))
sketch1.addConstraint(Sketcher.Constraint("DistanceY", 15, 2, 15, 1, Q("1 mm")))
sketch1.addConstraint(Sketcher.Constraint("DistanceY", 24, 2, 24, 1, Q("3 mm")))
sketch1.addConstraint(Sketcher.Constraint("DistanceY", 27, 1, 27, 2, Q("3 mm")))
sketch1.addConstraint(Sketcher.Constraint("DistanceY", 30, 1, 30, 2, Q("3 mm")))
sketch1.addConstraint(Sketcher.Constraint("DistanceY", 33, 2, 33, 1, Q("3 mm")))
sketch1.addConstraint(Sketcher.Constraint("DistanceY", 42, 2, 42, 1, Q("1 mm")))
sketch1.addConstraint(Sketcher.Constraint("DistanceY", 53, 1, 53, 2, Q("1 mm")))
sketch1.addConstraint(Sketcher.Constraint("DistanceY", 62, 1, 62, 2, Q("3 mm")))
sketch1.addConstraint(Sketcher.Constraint("DistanceY", 65, 2, 65, 1, Q("3 mm")))
sketch1.addConstraint(Sketcher.Constraint("DistanceY", 68, 2, 68, 1, Q("3 mm")))
sketch1.addConstraint(Sketcher.Constraint("DistanceY", 71, 1, 71, 2, Q("3 mm")))
sketch1.addConstraint(Sketcher.Constraint("DistanceX", 1, 1, 1, 2, Q("4.5 mm")))
sketch1.addConstraint(Sketcher.Constraint("DistanceX", 3, 1, 3, 2, Q("0.5 mm")))
sketch1.addConstraint(Sketcher.Constraint("DistanceX", 16, 1, 16, 2, Q("0.5 mm")))
sketch1.addConstraint(Sketcher.Constraint("DistanceX", 18, 1, 18, 2, Q("4.5 mm")))
sketch1.addConstraint(Sketcher.Constraint("DistanceX", 21, 2, 21, 1, Q("0.5 mm")))
sketch1.addConstraint(Sketcher.Constraint("DistanceX", 25, 2, 25, 1, Q("1.5 mm")))
sketch1.addConstraint(Sketcher.Constraint("DistanceX", 32, 1, 32, 2, Q("1.5 mm")))
sketch1.addConstraint(Sketcher.Constraint("DistanceX", 36, 1, 36, 2, Q("0.5 mm")))
sketch1.addConstraint(Sketcher.Constraint("DistanceX", 39, 2, 39, 1, Q("4.5 mm")))
sketch1.addConstraint(Sketcher.Constraint("DistanceX", 41, 2, 41, 1, Q("0.5 mm")))
sketch1.addConstraint(Sketcher.Constraint("DistanceX", 54, 2, 54, 1, Q("0.5 mm")))
sketch1.addConstraint(Sketcher.Constraint("DistanceX", 56, 2, 56, 1, Q("4.5 mm")))
sketch1.addConstraint(Sketcher.Constraint("DistanceX", 59, 1, 59, 2, Q("0.5 mm")))
sketch1.addConstraint(Sketcher.Constraint("DistanceX", 63, 1, 63, 2, Q("1.5 mm")))
sketch1.addConstraint(Sketcher.Constraint("DistanceX", 70, 2, 70, 1, Q("1.5 mm")))
sketch1.addConstraint(Sketcher.Constraint("DistanceX", 74, 2, 74, 1, Q("0.5 mm")))
sketch1.addConstraint(Sketcher.Constraint("DistanceY", 2, 1, 2, 2, Q("0.5 mm")))
sketch1.addConstraint(Sketcher.Constraint("DistanceY", 6, 1, 6, 2, Q("1.5 mm")))
sketch1.addConstraint(Sketcher.Constraint("DistanceY", 13, 2, 13, 1, Q("1.5 mm")))
sketch1.addConstraint(Sketcher.Constraint("DistanceY", 17, 2, 17, 1, Q("0.5 mm")))
sketch1.addConstraint(Sketcher.Constraint("DistanceY", 20, 1, 20, 2, Q("4.5 mm")))
sketch1.addConstraint(Sketcher.Constraint("DistanceY", 22, 1, 22, 2, Q("0.5 mm")))
sketch1.addConstraint(Sketcher.Constraint("DistanceY", 35, 1, 35, 2, Q("0.5 mm")))
sketch1.addConstraint(Sketcher.Constraint("DistanceY", 37, 1, 37, 2, Q("4.5 mm")))
sketch1.addConstraint(Sketcher.Constraint("DistanceY", 40, 2, 40, 1, Q("0.5 mm")))
sketch1.addConstraint(Sketcher.Constraint("DistanceY", 44, 2, 44, 1, Q("1.5 mm")))
sketch1.addConstraint(Sketcher.Constraint("DistanceY", 51, 1, 51, 2, Q("1.5 mm")))
sketch1.addConstraint(Sketcher.Constraint("DistanceY", 55, 1, 55, 2, Q("0.5 mm")))
sketch1.addConstraint(Sketcher.Constraint("DistanceY", 58, 2, 58, 1, Q("4.5 mm")))
sketch1.addConstraint(Sketcher.Constraint("DistanceY", 60, 2, 60, 1, Q("0.5 mm")))
sketch1.addConstraint(Sketcher.Constraint("DistanceY", 73, 2, 73, 1, Q("0.5 mm")))
sketch1.addConstraint(Sketcher.Constraint("DistanceY", 75, 2, 75, 1, Q("4.5 mm")))
sketch1.addConstraint(Sketcher.Constraint("DistanceX", 0, 3, -1, 1, Q("8.000001 mm")))
sketch1.addConstraint(Sketcher.Constraint("DistanceX", -1, 1, 19, 3, Q("8.000001 mm")))
sketch1.addConstraint(Sketcher.Constraint("DistanceX", -1, 1, 38, 3, Q("8.000001 mm")))
sketch1.addConstraint(Sketcher.Constraint("DistanceX", 57, 3, -1, 1, Q("8.000001 mm")))
sketch1.addConstraint(Sketcher.Constraint("DistanceX", 0, 2, -1, 1, Q("8 mm")))
sketch1.addConstraint(Sketcher.Constraint("DistanceX", -1, 1, 12, 2, Q("6 mm")))
sketch1.addConstraint(Sketcher.Constraint("DistanceX", -1, 1, 28, 2, Q("4 mm")))
sketch1.addConstraint(Sketcher.Constraint("DistanceX", -1, 1, 38, 2, Q("8 mm")))
sketch1.addConstraint(Sketcher.Constraint("DistanceX", 50, 2, -1, 1, Q("6 mm")))
sketch1.addConstraint(Sketcher.Constraint("DistanceX", 66, 2, -1, 1, Q("4 mm")))
sketch1.addConstraint(Sketcher.Constraint("DistanceX", -1, 1, 77, 1, Q("3 mm")))
sketch1.addConstraint(Sketcher.Constraint("DistanceX", 7, 2, -1, 1, Q("3.5 mm")))
sketch1.addConstraint(Sketcher.Constraint("DistanceX", -1, 1, 10, 2, Q("0.5 mm")))
sketch1.addConstraint(Sketcher.Constraint("DistanceX", -1, 1, 26, 2, Q("4.5 mm")))
sketch1.addConstraint(Sketcher.Constraint("DistanceX", -1, 1, 29, 2, Q("4.5 mm")))
sketch1.addConstraint(Sketcher.Constraint("DistanceX", -1, 1, 45, 2, Q("3.5 mm")))
sketch1.addConstraint(Sketcher.Constraint("DistanceX", 48, 2, -1, 1, Q("0.5 mm")))
sketch1.addConstraint(Sketcher.Constraint("DistanceX", 64, 2, -1, 1, Q("4.5 mm")))
sketch1.addConstraint(Sketcher.Constraint("DistanceX", 67, 2, -1, 1, Q("4.5 mm")))
sketch1.addConstraint(Sketcher.Constraint("Radius", 76, Q("3.000021 mm")))
sketch1.addConstraint(Sketcher.Constraint("Radius", 79, Q("3.000021 mm")))
sketch1.addConstraint(Sketcher.Constraint("Radius", 81, Q("3.000021 mm")))
sketch1.addConstraint(Sketcher.Constraint("Radius", 83, Q("3.000021 mm")))
sketch1.addConstraint(Sketcher.Constraint("DistanceY", -1, 1, 38, 3, Q("8.008048 mm")))
sketch1.addConstraint(Sketcher.Constraint("DistanceY", -1, 1, 57, 3, Q("8.008048 mm")))
sketch1.addConstraint(Sketcher.Constraint("DistanceY", -1, 1, 76, 3, Q("0.008032 mm")))
sketch1.addConstraint(Sketcher.Constraint("DistanceY", 78, 1, -1, 1, Q("1.73005 mm")))
sketch1.addConstraint(Sketcher.Constraint("DistanceY", 81, 1, -1, 1, Q("1.73005 mm")))
sketch1.addConstraint(Sketcher.Constraint("DistanceY", -1, 1, 83, 1, Q("2.45325 mm")))
sketch1.addConstraint(Sketcher.Constraint("DistanceY", -1, 1, 84, 1, Q("2.45325 mm")))
sketch1.addConstraint(Sketcher.Constraint("Distance", 7, Q("3.535534 mm")))
sketch1.addConstraint(Sketcher.Constraint("Distance", 9, Q("0.707107 mm")))
sketch1.addConstraint(Sketcher.Constraint("Distance", 10, Q("0.707107 mm")))
sketch1.addConstraint(Sketcher.Constraint("Distance", 12, Q("3.535534 mm")))
sketch1.addConstraint(Sketcher.Constraint("Distance", 26, Q("3.535534 mm")))
sketch1.addConstraint(Sketcher.Constraint("Distance", 28, Q("0.707107 mm")))
sketch1.addConstraint(Sketcher.Constraint("Distance", 29, Q("0.707107 mm")))
sketch1.addConstraint(Sketcher.Constraint("Distance", 31, Q("3.535534 mm")))
sketch1.addConstraint(Sketcher.Constraint("Distance", 45, Q("3.535534 mm")))
sketch1.addConstraint(Sketcher.Constraint("Distance", 47, Q("0.707107 mm")))
sketch1.addConstraint(Sketcher.Constraint("Distance", 48, Q("0.707107 mm")))
sketch1.addConstraint(Sketcher.Constraint("Distance", 64, Q("3.535534 mm")))
sketch1.addConstraint(Sketcher.Constraint("Distance", 66, Q("0.707107 mm")))
sketch1.addConstraint(Sketcher.Constraint("Distance", 67, Q("0.707107 mm")))
sketch1.addConstraint(Sketcher.Constraint("Distance", 69, Q("3.535534 mm")))
sketch1.addConstraint(Sketcher.Constraint("DistanceY", 0, 3, -1, 1, Q("7.991954 mm")))
sketch1.addConstraint(Sketcher.Constraint("DistanceY", 19, 2, -1, 1, Q("7.991953 mm")))
sketch1.addConstraint(Sketcher.Constraint("DistanceY", -1, 1, 57, 2, Q("8.008047 mm")))
sketch1.addConstraint(Sketcher.Constraint("DistanceX", -1, 1, 76, 1, Q("2.445203 mm")))
sketch1.addConstraint(Sketcher.Constraint("DistanceY", -1, 1, 77, 1, Q("0.008047 mm")))
sketch1.addConstraint(Sketcher.Constraint("DistanceX", -1, 1, 79, 1, Q("1.738097 mm")))
sketch1.addConstraint(Sketcher.Constraint("DistanceX", 80, 1, -1, 1, Q("1.738097 mm")))
sketch1.addConstraint(Sketcher.Constraint("DistanceX", 82, 1, -1, 1, Q("2.445203 mm")))
sketch1.setExpression("Constraints[148]", "Params.sketch1_radius")
sketch1.setExpression("Constraints[149]", "Params.sketch1_radius2")
sketch1.setExpression("Constraints[150]", "Params.sketch1_radius3")
sketch1.setExpression("Constraints[151]", "Params.sketch1_radius4")
sketch1.setExpression("Constraints[152]", "Params.sketch1_radius5")
pad1 = body.newObject("PartDesign::Pad", "Pad")
pad1.Profile = sketch1
pad1.setExpression("Length", "Params.pad1_length")

doc.recompute()
